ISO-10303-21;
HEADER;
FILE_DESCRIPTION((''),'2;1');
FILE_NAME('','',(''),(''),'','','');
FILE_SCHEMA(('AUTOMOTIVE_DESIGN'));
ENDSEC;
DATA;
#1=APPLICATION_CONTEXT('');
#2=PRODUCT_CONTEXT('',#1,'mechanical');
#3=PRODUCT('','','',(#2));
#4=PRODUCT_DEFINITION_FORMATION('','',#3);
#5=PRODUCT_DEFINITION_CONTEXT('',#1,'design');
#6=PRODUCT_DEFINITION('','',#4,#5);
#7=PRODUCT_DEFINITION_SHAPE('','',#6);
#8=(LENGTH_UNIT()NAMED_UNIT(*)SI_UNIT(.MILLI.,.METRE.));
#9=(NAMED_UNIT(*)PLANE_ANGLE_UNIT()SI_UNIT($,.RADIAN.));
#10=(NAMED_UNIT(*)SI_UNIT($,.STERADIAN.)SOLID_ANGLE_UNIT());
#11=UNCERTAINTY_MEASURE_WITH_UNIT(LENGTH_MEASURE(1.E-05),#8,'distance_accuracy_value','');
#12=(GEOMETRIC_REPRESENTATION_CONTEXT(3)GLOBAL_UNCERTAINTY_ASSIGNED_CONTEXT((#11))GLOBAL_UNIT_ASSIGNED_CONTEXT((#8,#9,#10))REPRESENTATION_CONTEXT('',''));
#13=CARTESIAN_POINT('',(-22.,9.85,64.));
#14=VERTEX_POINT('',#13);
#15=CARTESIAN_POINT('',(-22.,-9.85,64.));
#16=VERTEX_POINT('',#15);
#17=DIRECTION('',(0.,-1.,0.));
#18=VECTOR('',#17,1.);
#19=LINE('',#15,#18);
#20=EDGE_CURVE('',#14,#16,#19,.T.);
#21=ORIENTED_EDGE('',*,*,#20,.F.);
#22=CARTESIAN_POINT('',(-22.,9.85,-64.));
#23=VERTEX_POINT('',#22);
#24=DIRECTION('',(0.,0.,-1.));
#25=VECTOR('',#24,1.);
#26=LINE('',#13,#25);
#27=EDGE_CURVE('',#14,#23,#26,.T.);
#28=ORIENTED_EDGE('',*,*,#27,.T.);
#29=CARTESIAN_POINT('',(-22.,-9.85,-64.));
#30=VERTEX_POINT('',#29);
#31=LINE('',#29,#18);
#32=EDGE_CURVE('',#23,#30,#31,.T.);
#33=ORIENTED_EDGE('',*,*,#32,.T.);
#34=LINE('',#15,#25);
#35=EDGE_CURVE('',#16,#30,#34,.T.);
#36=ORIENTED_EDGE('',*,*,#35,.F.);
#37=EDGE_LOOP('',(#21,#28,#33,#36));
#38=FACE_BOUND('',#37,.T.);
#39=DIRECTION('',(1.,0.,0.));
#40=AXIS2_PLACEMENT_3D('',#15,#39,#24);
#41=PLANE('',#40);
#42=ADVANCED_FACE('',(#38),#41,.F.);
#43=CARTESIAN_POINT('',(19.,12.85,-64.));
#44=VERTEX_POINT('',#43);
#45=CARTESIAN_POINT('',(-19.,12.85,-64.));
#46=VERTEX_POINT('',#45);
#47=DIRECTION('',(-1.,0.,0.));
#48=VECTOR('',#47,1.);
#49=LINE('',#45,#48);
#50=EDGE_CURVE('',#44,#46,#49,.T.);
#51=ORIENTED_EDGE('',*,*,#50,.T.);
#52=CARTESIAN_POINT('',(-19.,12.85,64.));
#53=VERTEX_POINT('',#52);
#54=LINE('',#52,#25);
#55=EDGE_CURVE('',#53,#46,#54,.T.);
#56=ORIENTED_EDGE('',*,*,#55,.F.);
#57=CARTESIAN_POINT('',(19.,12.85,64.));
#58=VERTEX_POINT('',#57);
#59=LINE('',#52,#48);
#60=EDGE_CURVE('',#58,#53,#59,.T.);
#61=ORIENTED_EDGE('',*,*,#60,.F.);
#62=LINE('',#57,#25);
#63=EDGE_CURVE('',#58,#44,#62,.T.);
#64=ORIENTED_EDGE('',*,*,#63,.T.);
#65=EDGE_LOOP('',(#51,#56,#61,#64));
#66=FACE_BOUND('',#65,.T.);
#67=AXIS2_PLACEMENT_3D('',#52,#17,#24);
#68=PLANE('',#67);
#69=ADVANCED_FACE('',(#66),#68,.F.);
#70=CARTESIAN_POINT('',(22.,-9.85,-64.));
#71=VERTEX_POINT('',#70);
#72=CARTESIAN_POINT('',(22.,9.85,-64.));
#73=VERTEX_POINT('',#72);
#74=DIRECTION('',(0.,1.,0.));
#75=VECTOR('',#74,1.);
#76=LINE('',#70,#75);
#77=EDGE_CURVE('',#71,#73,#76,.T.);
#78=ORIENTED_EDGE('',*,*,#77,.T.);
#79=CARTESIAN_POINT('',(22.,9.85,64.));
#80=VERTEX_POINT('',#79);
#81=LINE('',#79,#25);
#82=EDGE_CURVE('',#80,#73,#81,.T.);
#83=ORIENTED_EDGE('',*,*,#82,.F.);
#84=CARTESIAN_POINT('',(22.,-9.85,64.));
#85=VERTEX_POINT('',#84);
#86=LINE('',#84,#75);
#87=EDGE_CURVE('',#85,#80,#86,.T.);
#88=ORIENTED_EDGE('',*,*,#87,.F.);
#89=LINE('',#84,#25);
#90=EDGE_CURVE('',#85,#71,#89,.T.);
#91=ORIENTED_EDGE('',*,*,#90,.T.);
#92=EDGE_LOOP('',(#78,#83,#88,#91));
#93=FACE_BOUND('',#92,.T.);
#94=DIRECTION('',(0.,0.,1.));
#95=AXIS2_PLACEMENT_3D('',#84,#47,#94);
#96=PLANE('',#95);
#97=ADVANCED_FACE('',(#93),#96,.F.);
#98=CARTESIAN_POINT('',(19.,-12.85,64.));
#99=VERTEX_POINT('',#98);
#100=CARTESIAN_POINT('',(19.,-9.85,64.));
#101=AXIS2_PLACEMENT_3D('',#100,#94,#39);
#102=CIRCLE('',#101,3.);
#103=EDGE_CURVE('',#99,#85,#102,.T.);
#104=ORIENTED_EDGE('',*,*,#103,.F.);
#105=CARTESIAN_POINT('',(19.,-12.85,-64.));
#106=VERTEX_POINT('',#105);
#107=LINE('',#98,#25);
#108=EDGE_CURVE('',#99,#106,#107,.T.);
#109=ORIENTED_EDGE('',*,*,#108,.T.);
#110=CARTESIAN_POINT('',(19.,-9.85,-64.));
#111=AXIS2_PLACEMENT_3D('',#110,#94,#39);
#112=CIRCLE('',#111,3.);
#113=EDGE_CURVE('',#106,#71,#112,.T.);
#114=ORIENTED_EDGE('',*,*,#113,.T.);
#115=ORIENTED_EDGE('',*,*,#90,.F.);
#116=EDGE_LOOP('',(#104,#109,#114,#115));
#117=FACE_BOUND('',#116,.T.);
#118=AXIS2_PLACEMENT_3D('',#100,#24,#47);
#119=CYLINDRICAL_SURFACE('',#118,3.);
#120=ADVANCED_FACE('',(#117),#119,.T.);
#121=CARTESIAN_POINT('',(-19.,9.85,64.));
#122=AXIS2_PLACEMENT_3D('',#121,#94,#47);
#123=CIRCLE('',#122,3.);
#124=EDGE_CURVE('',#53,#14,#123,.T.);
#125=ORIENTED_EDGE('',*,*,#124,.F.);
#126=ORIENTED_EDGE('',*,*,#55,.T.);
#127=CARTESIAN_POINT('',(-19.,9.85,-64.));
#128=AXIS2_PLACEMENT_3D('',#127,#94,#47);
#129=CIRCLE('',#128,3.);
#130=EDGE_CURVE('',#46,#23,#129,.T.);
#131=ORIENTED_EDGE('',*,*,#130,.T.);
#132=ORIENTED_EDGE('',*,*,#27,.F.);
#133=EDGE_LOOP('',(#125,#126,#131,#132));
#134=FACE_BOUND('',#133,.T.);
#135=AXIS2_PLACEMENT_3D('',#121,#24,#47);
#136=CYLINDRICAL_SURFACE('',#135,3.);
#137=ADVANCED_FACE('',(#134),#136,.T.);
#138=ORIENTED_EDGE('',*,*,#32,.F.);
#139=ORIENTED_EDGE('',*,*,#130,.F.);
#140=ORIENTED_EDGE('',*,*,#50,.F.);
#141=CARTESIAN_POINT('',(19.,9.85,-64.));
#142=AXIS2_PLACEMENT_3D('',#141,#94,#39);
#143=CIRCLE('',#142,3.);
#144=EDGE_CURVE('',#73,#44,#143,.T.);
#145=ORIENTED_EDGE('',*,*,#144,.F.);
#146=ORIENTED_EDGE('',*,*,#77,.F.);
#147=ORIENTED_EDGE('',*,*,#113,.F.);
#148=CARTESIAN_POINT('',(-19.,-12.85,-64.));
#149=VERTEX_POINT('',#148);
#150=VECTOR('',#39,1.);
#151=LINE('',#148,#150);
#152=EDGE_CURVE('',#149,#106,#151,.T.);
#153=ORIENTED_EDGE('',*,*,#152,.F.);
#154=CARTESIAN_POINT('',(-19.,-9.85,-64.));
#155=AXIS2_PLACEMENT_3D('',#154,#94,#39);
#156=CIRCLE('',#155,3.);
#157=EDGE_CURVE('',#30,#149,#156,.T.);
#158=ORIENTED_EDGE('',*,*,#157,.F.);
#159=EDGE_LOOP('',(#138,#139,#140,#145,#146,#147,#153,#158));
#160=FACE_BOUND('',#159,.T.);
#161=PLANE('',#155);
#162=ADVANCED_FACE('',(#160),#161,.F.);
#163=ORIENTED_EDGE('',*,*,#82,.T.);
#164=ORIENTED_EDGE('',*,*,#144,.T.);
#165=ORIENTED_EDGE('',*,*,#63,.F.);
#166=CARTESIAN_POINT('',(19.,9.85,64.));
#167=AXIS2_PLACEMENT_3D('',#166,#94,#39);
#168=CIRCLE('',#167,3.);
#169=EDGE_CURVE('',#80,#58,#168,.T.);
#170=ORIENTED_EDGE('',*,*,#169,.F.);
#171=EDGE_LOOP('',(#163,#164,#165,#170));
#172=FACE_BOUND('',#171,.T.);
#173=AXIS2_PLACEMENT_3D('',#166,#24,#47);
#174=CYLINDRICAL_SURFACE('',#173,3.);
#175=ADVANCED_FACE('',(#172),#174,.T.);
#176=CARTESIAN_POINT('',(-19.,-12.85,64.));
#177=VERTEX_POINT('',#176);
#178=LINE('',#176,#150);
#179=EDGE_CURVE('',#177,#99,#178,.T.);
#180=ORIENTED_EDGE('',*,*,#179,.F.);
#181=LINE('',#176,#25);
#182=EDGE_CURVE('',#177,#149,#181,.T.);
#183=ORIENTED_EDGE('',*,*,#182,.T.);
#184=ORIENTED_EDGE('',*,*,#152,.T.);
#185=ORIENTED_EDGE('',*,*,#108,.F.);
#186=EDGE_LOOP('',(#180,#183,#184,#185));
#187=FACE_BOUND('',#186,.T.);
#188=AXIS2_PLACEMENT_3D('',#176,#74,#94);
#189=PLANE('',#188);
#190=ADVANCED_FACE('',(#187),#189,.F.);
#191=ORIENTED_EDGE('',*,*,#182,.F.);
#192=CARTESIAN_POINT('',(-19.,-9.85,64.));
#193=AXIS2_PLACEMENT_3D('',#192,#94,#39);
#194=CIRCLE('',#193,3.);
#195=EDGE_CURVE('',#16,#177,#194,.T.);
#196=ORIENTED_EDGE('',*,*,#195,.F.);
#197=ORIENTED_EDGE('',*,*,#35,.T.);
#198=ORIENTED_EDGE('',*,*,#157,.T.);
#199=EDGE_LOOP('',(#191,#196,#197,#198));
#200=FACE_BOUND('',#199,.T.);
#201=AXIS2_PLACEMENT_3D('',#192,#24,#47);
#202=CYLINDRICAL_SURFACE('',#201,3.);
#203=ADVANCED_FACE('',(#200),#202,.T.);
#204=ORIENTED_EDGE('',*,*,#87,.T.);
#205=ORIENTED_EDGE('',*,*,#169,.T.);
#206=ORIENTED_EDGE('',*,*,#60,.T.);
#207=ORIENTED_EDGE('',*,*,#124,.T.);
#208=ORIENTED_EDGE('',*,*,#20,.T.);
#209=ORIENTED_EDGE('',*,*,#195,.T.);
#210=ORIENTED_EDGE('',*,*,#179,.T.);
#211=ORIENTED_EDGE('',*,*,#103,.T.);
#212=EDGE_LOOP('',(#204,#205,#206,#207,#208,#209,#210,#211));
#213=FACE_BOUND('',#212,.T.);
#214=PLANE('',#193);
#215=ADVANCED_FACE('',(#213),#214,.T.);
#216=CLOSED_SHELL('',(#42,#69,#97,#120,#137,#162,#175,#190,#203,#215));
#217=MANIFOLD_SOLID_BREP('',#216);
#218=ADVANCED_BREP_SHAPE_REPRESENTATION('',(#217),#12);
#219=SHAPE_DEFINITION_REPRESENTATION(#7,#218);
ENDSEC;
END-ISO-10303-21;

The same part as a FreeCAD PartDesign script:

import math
import FreeCAD as App
import Part
import Sketcher

doc = App.newDocument("Part")
body = doc.addObject("PartDesign::Body", "Body")

# Sketch on XY plane
sketch1 = body.newObject("Sketcher::SketchObject", "Sketch")
sketch1.AttachmentSupport = (doc.getObject("XY_Plane"), [""])
sketch1.MapMode = "FlatFace"
sketch1.addGeometry(Part.LineSegment(App.Vector(-19, -12.85, 0), App.Vector(19, -12.85, 0)), False)
sketch1.addGeometry(Part.ArcOfCircle(Part.Circle(App.Vector(19, -9.85, 0), App.Vector(0, 0, 1), 3), math.radians(-90), math.radians(0)), False)
sketch1.addGeometry(Part.LineSegment(App.Vector(22, -9.85, 0), App.Vector(22, 9.85, 0)), False)
sketch1.addGeometry(Part.ArcOfCircle(Part.Circle(App.Vector(19, 9.85, 0), App.Vector(0, 0, 1), 3), math.radians(0), math.radians(90)), False)
sketch1.addGeometry(Part.LineSegment(App.Vector(19, 12.85, 0), App.Vector(-19, 12.85, 0)), False)
sketch1.addGeometry(Part.ArcOfCircle(Part.Circle(App.Vector(-19, 9.85, 0), App.Vector(0, 0, 1), 3), math.radians(90), math.radians(180)), False)
sketch1.addGeometry(Part.LineSegment(App.Vector(-22, 9.85, 0), App.Vector(-22, -9.85, 0)), False)
sketch1.addGeometry(Part.ArcOfCircle(Part.Circle(App.Vector(-19, -9.85, 0), App.Vector(0, 0, 1), 3), math.radians(180), math.radians(270)), False)
sketch1.addConstraint(Sketcher.Constraint("Tangent", 0, 2, 1, 1))
sketch1.addConstraint(Sketcher.Constraint("Tangent", 1, 2, 2, 1))
sketch1.addConstraint(Sketcher.Constraint("Tangent", 2, 2, 3, 1))
sketch1.addConstraint(Sketcher.Constraint("Tangent", 3, 2, 4, 1))
sketch1.addConstraint(Sketcher.Constraint("Tangent", 4, 2, 5, 1))
sketch1.addConstraint(Sketcher.Constraint("Tangent", 5, 2, 6, 1))
sketch1.addConstraint(Sketcher.Constraint("Tangent", 6, 2, 7, 1))
sketch1.addConstraint(Sketcher.Constraint("Tangent", 7, 2, 0, 1))
sketch1.addConstraint(Sketcher.Constraint("Horizontal", 0))
sketch1.addConstraint(Sketcher.Constraint("Vertical", 2))
sketch1.addConstraint(Sketcher.Constraint("Horizontal", 4))
sketch1.addConstraint(Sketcher.Constraint("Vertical", 6))
sketch1.addConstraint(Sketcher.Constraint("Equal", 1, 3))
sketch1.addConstraint(Sketcher.Constraint("Equal", 3, 5))
sketch1.addConstraint(Sketcher.Constraint("Equal", 5, 7))
sketch1.addConstraint(Sketcher.Constraint("Symmetric", 1, 3, 5, 3, -1, 1))
sketch1.addConstraint(Sketcher.Constraint("Radius", 1, 3.0))
sketch1.addConstraint(Sketcher.Constraint("DistanceX", 0, 1, 0, 2, 38.0))
sketch1.addConstraint(Sketcher.Constraint("DistanceY", 2, 1, 2, 2, 19.7))
pad1 = body.newObject("PartDesign::Pad", "Pad")
pad1.Profile = sketch1
pad1.Length = 128
pad1.Midplane = True

doc.recompute()
